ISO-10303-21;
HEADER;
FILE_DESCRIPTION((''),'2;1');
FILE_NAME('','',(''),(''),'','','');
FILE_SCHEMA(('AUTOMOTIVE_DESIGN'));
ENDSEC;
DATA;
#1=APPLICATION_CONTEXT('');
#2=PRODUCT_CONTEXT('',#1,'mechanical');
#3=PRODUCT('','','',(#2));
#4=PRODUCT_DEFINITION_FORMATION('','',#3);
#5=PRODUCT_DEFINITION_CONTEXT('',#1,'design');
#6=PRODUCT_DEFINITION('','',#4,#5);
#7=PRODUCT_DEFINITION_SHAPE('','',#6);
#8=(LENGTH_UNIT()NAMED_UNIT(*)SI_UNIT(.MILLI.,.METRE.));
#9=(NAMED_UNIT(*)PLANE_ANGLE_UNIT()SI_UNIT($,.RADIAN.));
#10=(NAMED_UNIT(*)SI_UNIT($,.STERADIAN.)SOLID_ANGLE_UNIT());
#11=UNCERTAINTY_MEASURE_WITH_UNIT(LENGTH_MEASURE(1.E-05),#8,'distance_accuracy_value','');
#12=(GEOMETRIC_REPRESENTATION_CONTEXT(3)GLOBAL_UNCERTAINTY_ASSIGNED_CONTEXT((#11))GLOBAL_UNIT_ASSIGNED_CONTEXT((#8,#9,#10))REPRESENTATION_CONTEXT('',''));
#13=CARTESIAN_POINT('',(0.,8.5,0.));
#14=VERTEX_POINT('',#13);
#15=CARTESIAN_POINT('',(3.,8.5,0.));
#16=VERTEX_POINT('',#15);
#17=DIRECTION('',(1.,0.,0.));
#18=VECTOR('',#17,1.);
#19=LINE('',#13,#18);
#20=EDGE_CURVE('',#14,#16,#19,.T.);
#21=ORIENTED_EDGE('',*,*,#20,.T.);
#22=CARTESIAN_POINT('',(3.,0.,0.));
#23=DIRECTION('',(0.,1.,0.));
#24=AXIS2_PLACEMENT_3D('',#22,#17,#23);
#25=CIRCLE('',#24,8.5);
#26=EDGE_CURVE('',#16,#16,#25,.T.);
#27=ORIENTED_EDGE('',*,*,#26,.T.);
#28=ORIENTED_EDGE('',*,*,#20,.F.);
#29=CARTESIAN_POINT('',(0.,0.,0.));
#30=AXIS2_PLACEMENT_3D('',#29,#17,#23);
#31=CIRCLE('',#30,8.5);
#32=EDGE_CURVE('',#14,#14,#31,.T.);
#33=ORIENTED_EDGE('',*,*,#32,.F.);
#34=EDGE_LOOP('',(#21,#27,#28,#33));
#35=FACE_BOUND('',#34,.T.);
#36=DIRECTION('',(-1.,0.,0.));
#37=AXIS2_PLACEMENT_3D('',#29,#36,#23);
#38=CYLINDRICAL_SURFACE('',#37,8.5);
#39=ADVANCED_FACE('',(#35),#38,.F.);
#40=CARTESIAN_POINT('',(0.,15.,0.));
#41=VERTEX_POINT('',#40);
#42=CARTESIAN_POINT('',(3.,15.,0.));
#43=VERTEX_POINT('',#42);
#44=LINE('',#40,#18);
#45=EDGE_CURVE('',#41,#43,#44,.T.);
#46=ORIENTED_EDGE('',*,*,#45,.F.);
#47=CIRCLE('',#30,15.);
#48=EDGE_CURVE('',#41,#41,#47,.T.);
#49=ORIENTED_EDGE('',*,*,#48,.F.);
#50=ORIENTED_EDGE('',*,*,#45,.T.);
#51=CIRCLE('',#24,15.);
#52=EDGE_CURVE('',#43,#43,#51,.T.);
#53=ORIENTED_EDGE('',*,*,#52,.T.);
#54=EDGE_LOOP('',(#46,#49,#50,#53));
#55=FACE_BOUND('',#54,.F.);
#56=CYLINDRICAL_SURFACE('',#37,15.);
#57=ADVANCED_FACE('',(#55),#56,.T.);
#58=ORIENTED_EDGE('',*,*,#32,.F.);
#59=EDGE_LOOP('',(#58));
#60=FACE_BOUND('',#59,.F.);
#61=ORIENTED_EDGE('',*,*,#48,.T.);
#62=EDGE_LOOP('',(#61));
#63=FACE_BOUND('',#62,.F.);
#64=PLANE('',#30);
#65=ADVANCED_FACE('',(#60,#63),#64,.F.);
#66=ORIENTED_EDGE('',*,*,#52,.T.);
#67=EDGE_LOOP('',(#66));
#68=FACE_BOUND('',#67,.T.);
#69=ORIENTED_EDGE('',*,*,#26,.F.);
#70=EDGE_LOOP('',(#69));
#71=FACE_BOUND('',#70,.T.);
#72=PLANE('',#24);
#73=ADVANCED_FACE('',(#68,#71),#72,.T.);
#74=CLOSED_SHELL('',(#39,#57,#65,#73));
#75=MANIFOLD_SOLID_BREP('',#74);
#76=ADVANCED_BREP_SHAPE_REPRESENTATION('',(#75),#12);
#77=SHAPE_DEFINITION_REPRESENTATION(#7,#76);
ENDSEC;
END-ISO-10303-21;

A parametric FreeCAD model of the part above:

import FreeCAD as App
import Part
import Sketcher

V = App.Vector

doc = App.newDocument("Part")
body = doc.addObject("PartDesign::Body", "Body")

sketch1 = body.newObject("Sketcher::SketchObject", "Sketch")
sketch1.AttachmentSupport = (doc.getObject("YZ_Plane"), [""])
sketch1.MapMode = "FlatFace"
sketch1.addGeometry(Part.Circle(V(0, 0, 0), V(0, 0, 1), 15), False)
sketch1.addGeometry(Part.Circle(V(0, 0, 0), V(0, 0, 1), 8), False)
sketch1.addConstraint(Sketcher.Constraint("Coincident", 0, 3, -1, 1))
sketch1.addConstraint(Sketcher.Constraint("Coincident", 1, 3, -1, 1))
sketch1.addConstraint(Sketcher.Constraint("Diameter", 0, 30.0))
sketch1.addConstraint(Sketcher.Constraint("Diameter", 1, 17.0))
pad1 = body.newObject("PartDesign::Pad", "Pad")
pad1.Profile = sketch1
pad1.Length = 3

doc.recompute()
